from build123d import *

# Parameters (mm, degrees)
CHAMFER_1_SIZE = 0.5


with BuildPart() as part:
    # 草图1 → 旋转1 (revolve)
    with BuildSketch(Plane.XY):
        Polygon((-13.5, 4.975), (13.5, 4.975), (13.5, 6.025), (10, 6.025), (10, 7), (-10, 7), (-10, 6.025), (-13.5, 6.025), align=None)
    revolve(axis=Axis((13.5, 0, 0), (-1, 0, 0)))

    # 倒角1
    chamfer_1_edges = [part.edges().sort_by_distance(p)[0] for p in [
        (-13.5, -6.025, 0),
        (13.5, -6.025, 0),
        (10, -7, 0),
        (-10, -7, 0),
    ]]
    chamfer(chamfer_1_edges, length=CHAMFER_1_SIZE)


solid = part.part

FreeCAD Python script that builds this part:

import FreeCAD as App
import Part
import Sketcher

V = App.Vector


def edges_at(feature, points):
    """Names of the edges that pass closest to the given points."""
    edges = feature.Shape.Edges
    near = lambda p: min(range(len(edges)), key=lambda i: edges[i].distToShape(Part.Vertex(*p))[0])
    return sorted({f"Edge{near(p) + 1}" for p in points})


def add_polygon(sketch, points):
    """Adds a closed chain of lines whose ends are joined by coincident constraints."""
    first, n = sketch.GeometryCount, len(points)
    for a, b in zip(points, points[1:] + points[:1]):
        sketch.addGeometry(Part.LineSegment(App.Vector(*a, 0), App.Vector(*b, 0)), False)
    for i in range(n):
        sketch.addConstraint(Sketcher.Constraint("Coincident", first + i, 2, first + (i + 1) % n, 1))

doc = App.newDocument("Part")
body = doc.addObject("PartDesign::Body", "Body")

# Sketch on XY plane
sketch1 = doc.addObject("Sketcher::SketchObject", "Sketch")
body.addObject(sketch1)
sketch1.AttachmentSupport = (doc.XY_Plane, [""])
sketch1.MapMode = "FlatFace"
add_polygon(sketch1, [(-13.5, 4.975), (13.5, 4.975), (13.5, 6.025), (10, 6.025), (10, 7), (-10, 7), (-10, 6.025), (-13.5, 6.025)])  # lines 0-7
sketch1.addConstraint(Sketcher.Constraint("Horizontal", 0))
sketch1.addConstraint(Sketcher.Constraint("Vertical", 1))
sketch1.addConstraint(Sketcher.Constraint("Horizontal", 2))
sketch1.addConstraint(Sketcher.Constraint("Vertical", 3))
sketch1.addConstraint(Sketcher.Constraint("Horizontal", 4))
sketch1.addConstraint(Sketcher.Constraint("Vertical", 5))
sketch1.addConstraint(Sketcher.Constraint("Horizontal", 6))
sketch1.addConstraint(Sketcher.Constraint("Vertical", 7))
sketch1.addConstraint(Sketcher.Constraint("Symmetric", 2, 2, 5, 2, -2))
sketch1.addConstraint(Sketcher.Constraint("Equal", 2, 6))
sketch1.addConstraint(Sketcher.Constraint("DistanceX", 0, 1, 0, 2, 27.0))
sketch1.addConstraint(Sketcher.Constraint("DistanceX", 4, 2, 4, 1, 20.0))
sketch1.addConstraint(Sketcher.Constraint("DistanceY", -1, 1, 3, 2, 7.0))
sketch1.addConstraint(Sketcher.Constraint("DistanceY", 1, 1, 1, 2, 1.05))
sketch1.addConstraint(Sketcher.Constraint("DistanceY", 3, 1, 3, 2, 0.975))
revolution = doc.addObject("PartDesign::Revolution", "Revolution")
body.addObject(revolution)
revolution.Profile = sketch1
revolution.ReferenceAxis = (sketch1, ["H_Axis"])
revolution.Angle = 360
doc.recompute()

chamfer = doc.addObject("PartDesign::Chamfer", "Chamfer")
body.addObject(chamfer)
chamfer.Base = (revolution, edges_at(revolution, [
    (-13.5, -6.025, 0),
    (13.5, -6.025, 0),
    (10, -7, 0),
    (-10, -7, 0),
]))
chamfer.Size = 0.5

doc.recompute()
